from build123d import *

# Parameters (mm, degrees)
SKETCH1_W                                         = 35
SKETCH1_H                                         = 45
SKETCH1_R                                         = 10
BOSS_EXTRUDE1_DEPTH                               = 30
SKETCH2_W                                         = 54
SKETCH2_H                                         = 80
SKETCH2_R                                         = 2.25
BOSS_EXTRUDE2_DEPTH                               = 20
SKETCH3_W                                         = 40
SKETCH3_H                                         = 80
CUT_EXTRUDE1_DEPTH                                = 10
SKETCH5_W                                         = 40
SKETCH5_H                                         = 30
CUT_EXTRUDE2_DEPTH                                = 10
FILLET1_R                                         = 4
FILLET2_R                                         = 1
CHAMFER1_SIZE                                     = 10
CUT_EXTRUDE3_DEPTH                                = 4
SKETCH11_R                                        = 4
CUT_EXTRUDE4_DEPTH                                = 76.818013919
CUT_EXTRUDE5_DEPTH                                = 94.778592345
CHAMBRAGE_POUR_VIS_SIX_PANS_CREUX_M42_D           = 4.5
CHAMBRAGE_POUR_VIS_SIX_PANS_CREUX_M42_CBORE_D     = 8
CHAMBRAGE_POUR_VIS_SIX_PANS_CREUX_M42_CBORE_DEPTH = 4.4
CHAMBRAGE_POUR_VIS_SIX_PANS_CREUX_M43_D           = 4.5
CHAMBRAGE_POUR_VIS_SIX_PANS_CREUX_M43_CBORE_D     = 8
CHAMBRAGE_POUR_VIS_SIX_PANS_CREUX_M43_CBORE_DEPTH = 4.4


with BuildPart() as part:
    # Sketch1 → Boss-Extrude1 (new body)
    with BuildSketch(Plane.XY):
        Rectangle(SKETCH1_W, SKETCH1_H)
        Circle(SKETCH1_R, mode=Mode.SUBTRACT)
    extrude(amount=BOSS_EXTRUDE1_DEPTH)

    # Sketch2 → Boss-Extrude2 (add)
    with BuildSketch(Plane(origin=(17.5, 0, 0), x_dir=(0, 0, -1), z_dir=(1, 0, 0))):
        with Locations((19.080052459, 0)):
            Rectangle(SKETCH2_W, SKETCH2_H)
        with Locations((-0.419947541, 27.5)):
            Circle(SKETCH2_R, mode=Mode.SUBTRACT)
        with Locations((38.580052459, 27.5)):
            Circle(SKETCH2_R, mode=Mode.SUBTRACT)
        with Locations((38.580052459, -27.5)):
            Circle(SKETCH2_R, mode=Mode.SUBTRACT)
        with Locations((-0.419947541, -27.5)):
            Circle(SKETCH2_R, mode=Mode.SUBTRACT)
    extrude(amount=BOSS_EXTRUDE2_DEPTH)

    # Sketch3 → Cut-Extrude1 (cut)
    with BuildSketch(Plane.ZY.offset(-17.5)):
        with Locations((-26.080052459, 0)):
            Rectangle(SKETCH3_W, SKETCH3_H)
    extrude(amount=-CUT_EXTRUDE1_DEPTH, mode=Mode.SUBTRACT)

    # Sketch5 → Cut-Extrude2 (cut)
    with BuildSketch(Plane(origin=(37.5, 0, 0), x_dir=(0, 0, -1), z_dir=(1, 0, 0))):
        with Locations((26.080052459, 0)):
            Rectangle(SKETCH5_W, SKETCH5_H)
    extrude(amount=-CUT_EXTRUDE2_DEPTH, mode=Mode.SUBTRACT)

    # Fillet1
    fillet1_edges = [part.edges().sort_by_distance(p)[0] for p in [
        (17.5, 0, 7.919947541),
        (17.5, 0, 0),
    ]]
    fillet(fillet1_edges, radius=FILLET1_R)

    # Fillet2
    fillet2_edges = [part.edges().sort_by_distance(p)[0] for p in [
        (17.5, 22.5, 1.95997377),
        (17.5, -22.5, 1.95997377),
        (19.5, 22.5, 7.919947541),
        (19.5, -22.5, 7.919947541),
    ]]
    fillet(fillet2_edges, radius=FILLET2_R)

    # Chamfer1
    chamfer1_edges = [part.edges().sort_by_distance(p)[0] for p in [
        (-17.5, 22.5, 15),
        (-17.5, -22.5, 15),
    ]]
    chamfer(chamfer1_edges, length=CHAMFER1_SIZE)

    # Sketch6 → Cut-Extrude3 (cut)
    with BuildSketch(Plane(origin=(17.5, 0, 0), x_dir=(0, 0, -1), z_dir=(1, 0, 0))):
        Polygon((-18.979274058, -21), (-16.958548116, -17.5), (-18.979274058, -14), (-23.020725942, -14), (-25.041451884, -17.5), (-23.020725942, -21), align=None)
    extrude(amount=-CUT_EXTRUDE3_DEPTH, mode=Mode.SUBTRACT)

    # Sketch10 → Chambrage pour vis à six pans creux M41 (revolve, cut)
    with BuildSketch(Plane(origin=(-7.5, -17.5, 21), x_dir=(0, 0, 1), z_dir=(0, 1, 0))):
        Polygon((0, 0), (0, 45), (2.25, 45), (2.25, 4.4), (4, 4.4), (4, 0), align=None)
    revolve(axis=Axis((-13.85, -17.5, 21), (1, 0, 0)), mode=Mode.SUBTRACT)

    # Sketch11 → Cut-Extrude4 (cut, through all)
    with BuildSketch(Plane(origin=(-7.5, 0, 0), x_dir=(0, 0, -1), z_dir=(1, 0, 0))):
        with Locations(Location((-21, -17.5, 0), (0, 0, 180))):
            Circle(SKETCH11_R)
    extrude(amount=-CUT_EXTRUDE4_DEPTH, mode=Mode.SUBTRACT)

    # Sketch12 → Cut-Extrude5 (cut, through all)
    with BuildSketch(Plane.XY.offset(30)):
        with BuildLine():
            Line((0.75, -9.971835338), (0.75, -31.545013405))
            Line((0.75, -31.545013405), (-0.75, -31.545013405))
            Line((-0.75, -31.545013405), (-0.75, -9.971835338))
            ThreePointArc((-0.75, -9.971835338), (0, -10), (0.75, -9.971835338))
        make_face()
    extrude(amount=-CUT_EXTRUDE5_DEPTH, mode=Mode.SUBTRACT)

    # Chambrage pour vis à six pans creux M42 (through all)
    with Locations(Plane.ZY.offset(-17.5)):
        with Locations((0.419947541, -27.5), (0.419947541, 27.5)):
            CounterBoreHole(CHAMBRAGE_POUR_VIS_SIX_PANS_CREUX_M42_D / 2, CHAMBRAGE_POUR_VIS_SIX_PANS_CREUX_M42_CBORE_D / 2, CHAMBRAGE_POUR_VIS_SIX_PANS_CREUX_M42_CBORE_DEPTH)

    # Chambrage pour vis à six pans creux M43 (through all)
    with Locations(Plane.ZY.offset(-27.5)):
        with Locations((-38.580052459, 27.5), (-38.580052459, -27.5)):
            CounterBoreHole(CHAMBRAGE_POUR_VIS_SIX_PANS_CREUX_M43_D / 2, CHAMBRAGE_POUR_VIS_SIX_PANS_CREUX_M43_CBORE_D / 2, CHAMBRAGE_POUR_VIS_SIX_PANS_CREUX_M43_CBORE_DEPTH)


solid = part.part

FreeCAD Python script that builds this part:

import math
import FreeCAD as App
import Part
import Sketcher

V = App.Vector
Q = App.Units.Quantity


def edges_at(feature, points):
    """Names of the edges that pass closest to the given points."""
    edges = feature.Shape.Edges
    near = lambda p: min(range(len(edges)), key=lambda i: edges[i].distToShape(Part.Vertex(*p))[0])
    return sorted({f"Edge{near(p) + 1}" for p in points})

doc = App.newDocument("Part")
body = doc.addObject("PartDesign::Body", "Body")

sketch1 = doc.addObject("Sketcher::SketchObject", "Sketch")
body.addObject(sketch1)
sketch1.AttachmentSupport = (doc.XY_Plane, [""])
sketch1.MapMode = "FlatFace"
sketch1.addGeometry([
    Part.LineSegment(V(-18, 22, 0), V(-18, -22, 0)),
    Part.LineSegment(V(-18, -22, 0), V(18, -22, 0)),
    Part.LineSegment(V(18, -22, 0), V(18, 22, 0)),
    Part.LineSegment(V(18, 22, 0), V(-18, 22, 0)),
    Part.Circle(V(0, 0, 0), V(0, 0, 1), 10),
], False)
sketch1.addConstraint([
    Sketcher.Constraint("Coincident", 0, 2, 1, 1),
    Sketcher.Constraint("Coincident", 1, 2, 2, 1),
    Sketcher.Constraint("Coincident", 2, 2, 3, 1),
    Sketcher.Constraint("Coincident", 3, 2, 0, 1),
    Sketcher.Constraint("Vertical", 0),
    Sketcher.Constraint("Horizontal", 1),
    Sketcher.Constraint("Vertical", 2),
    Sketcher.Constraint("Horizontal", 3),
    Sketcher.Constraint("Coincident", 4, 3, -1, 1),
    Sketcher.Constraint("Symmetric", 0, 2, 2, 2, -1, 1),
    Sketcher.Constraint("Diameter", 4, Q("20 mm")),
    Sketcher.Constraint("DistanceX", 1, 1, 1, 2, Q("35 mm")),
    Sketcher.Constraint("DistanceY", 0, 2, 0, 1, Q("45 mm")),
])
pad1 = doc.addObject("PartDesign::Pad", "Pad")
body.addObject(pad1)
pad1.Profile = sketch1
pad1.Length = 30

sketch2 = doc.addObject("Sketcher::SketchObject", "Sketch001")
body.addObject(sketch2)
sketch2.AttachmentSupport = (doc.YZ_Plane, [""])
sketch2.MapMode = "FlatFace"
sketch2.AttachmentOffset = App.Placement(V(0, 0, 17.5), App.Rotation())
sketch2.addGeometry([
    Part.LineSegment(V(40, 7.9, 0), V(-40, 7.9, 0)),
    Part.LineSegment(V(-40, 7.9, 0), V(-40, -46.1, 0)),
    Part.LineSegment(V(-40, -46.1, 0), V(40, -46.1, 0)),
    Part.LineSegment(V(40, -46.1, 0), V(40, 7.9, 0)),
    Part.Circle(V(-27.5, 0.4, 0), V(0, 0, 1), 2.2),
    Part.Circle(V(-27.5, -38.6, 0), V(0, 0, 1), 2.2),
    Part.Circle(V(27.5, 0.4, 0), V(0, 0, 1), 2.2),
    Part.Circle(V(27.5, -38.6, 0), V(0, 0, 1), 2.2),
], False)
sketch2.addConstraint([
    Sketcher.Constraint("Coincident", 0, 2, 1, 1),
    Sketcher.Constraint("Coincident", 1, 2, 2, 1),
    Sketcher.Constraint("Coincident", 2, 2, 3, 1),
    Sketcher.Constraint("Coincident", 3, 2, 0, 1),
    Sketcher.Constraint("Horizontal", 0),
    Sketcher.Constraint("Vertical", 1),
    Sketcher.Constraint("Horizontal", 2),
    Sketcher.Constraint("Vertical", 3),
    Sketcher.Constraint("Equal", 4, 5),
    Sketcher.Constraint("Equal", 5, 6),
    Sketcher.Constraint("Equal", 6, 7),
    Sketcher.Constraint("Symmetric", 4, 3, 6, 3, -2),
    Sketcher.Constraint("Symmetric", 5, 3, 7, 3, -2),
    Sketcher.Constraint("Vertical", 4, 3, 5, 3),
    Sketcher.Constraint("Diameter", 4, Q("4.5 mm")),
    Sketcher.Constraint("DistanceX", 0, 2, 0, 1, Q("80 mm")),
    Sketcher.Constraint("DistanceY", 1, 2, 1, 1, Q("54 mm")),
    Sketcher.Constraint("DistanceX", 0, 2, -1, 1, Q("40 mm")),
    Sketcher.Constraint("DistanceY", 5, 3, 4, 3, Q("39 mm")),
    Sketcher.Constraint("DistanceX", 4, 3, 6, 3, Q("55 mm")),
    Sketcher.Constraint("DistanceY", 4, 3, 0, 2, Q("7.5 mm")),
    Sketcher.Constraint("DistanceY", -1, 1, 4, 3, Q("0.419948 mm")),
])
pad2 = doc.addObject("PartDesign::Pad", "Pad001")
body.addObject(pad2)
pad2.Profile = sketch2
pad2.Length = 20

sketch3 = doc.addObject("Sketcher::SketchObject", "Sketch002")
body.addObject(sketch3)
sketch3.AttachmentSupport = (doc.YZ_Plane, [""])
sketch3.MapMode = "FlatFace"
sketch3.AttachmentOffset = App.Placement(V(0, 0, 17.5), App.Rotation())
sketch3.addGeometry([
    Part.LineSegment(V(40, -46, 0), V(-40, -46, 0)),
    Part.LineSegment(V(-40, -46, 0), V(-40, -6, 0)),
    Part.LineSegment(V(-40, -6, 0), V(40, -6, 0)),
    Part.LineSegment(V(40, -6, 0), V(40, -46, 0)),
], False)
sketch3.addConstraint([
    Sketcher.Constraint("Coincident", 0, 2, 1, 1),
    Sketcher.Constraint("Coincident", 1, 2, 2, 1),
    Sketcher.Constraint("Coincident", 2, 2, 3, 1),
    Sketcher.Constraint("Coincident", 3, 2, 0, 1),
    Sketcher.Constraint("Horizontal", 0),
    Sketcher.Constraint("Vertical", 1),
    Sketcher.Constraint("Horizontal", 2),
    Sketcher.Constraint("Vertical", 3),
    Sketcher.Constraint("DistanceX", 0, 2, 0, 1, Q("80 mm")),
    Sketcher.Constraint("DistanceY", 1, 1, 1, 2, Q("40 mm")),
    Sketcher.Constraint("DistanceX", 0, 2, -1, 1, Q("40 mm")),
    Sketcher.Constraint("DistanceY", 0, 2, -1, 1, Q("46.080052 mm")),
])
pocket1 = doc.addObject("PartDesign::Pocket", "Pocket")
body.addObject(pocket1)
pocket1.Profile = sketch3
pocket1.Length = 10
pocket1.Reversed = True

sketch4 = doc.addObject("Sketcher::SketchObject", "Sketch003")
body.addObject(sketch4)
sketch4.AttachmentSupport = (doc.YZ_Plane, [""])
sketch4.MapMode = "FlatFace"
sketch4.AttachmentOffset = App.Placement(V(0, 0, 37.5), App.Rotation())
sketch4.addGeometry([
    Part.LineSegment(V(15, -6, 0), V(-15, -6, 0)),
    Part.LineSegment(V(-15, -6, 0), V(-15, -46, 0)),
    Part.LineSegment(V(-15, -46, 0), V(15, -46, 0)),
    Part.LineSegment(V(15, -46, 0), V(15, -6, 0)),
], False)
sketch4.addConstraint([
    Sketcher.Constraint("Coincident", 0, 2, 1, 1),
    Sketcher.Constraint("Coincident", 1, 2, 2, 1),
    Sketcher.Constraint("Coincident", 2, 2, 3, 1),
    Sketcher.Constraint("Coincident", 3, 2, 0, 1),
    Sketcher.Constraint("Horizontal", 0),
    Sketcher.Constraint("Vertical", 1),
    Sketcher.Constraint("Horizontal", 2),
    Sketcher.Constraint("Vertical", 3),
    Sketcher.Constraint("DistanceX", 0, 2, 0, 1, Q("30 mm")),
    Sketcher.Constraint("DistanceY", 1, 2, 1, 1, Q("40 mm")),
    Sketcher.Constraint("DistanceX", 0, 2, -1, 1, Q("15 mm")),
    Sketcher.Constraint("DistanceY", 0, 2, -1, 1, Q("6.080052 mm")),
])
pocket2 = doc.addObject("PartDesign::Pocket", "Pocket001")
body.addObject(pocket2)
pocket2.Profile = sketch4
pocket2.Length = 10
doc.recompute()

fillet = doc.addObject("PartDesign::Fillet", "Fillet")
body.addObject(fillet)
fillet.Base = (pocket2, edges_at(pocket2, [(17.5, 0, 7.92), (17.5, 0, 0)]))
fillet.Radius = 4
doc.recompute()

fillet2 = doc.addObject("PartDesign::Fillet", "Fillet001")
body.addObject(fillet2)
fillet2.Base = (fillet, edges_at(fillet, [
    (17.5, 22.5, 1.96),
    (17.5, -22.5, 1.96),
    (19.5, 22.5, 7.92),
    (19.5, -22.5, 7.92),
]))
fillet2.Radius = 1
doc.recompute()

chamfer = doc.addObject("PartDesign::Chamfer", "Chamfer")
body.addObject(chamfer)
chamfer.Base = (fillet2, edges_at(fillet2, [(-17.5, 22.5, 15), (-17.5, -22.5, 15)]))
chamfer.Size = 10

sketch5 = doc.addObject("Sketcher::SketchObject", "Sketch004")
body.addObject(sketch5)
sketch5.AttachmentSupport = (doc.YZ_Plane, [""])
sketch5.MapMode = "FlatFace"
sketch5.AttachmentOffset = App.Placement(V(0, 0, 17.5), App.Rotation())
sketch5.addGeometry([
    Part.LineSegment(V(-21, 19, 0), V(-17.5, 17, 0)),
    Part.LineSegment(V(-17.5, 17, 0), V(-14, 19, 0)),
    Part.LineSegment(V(-14, 19, 0), V(-14, 23, 0)),
    Part.LineSegment(V(-14, 23, 0), V(-17.5, 25, 0)),
    Part.LineSegment(V(-17.5, 25, 0), V(-21, 23, 0)),
    Part.LineSegment(V(-21, 23, 0), V(-21, 19, 0)),
], False)
sketch5.addConstraint([
    Sketcher.Constraint("Coincident", 0, 2, 1, 1),
    Sketcher.Constraint("Coincident", 1, 2, 2, 1),
    Sketcher.Constraint("Coincident", 2, 2, 3, 1),
    Sketcher.Constraint("Coincident", 3, 2, 4, 1),
    Sketcher.Constraint("Coincident", 4, 2, 5, 1),
    Sketcher.Constraint("Coincident", 5, 2, 0, 1),
    Sketcher.Constraint("Vertical", 2),
    Sketcher.Constraint("Vertical", 5),
    Sketcher.Constraint("Parallel", 0, 3),
    Sketcher.Constraint("Parallel", 1, 4),
    Sketcher.Constraint("Horizontal", 2, 2, 4, 2),
    Sketcher.Constraint("Horizontal", 1, 2, 5, 2),
    Sketcher.Constraint("Vertical", 0, 2, 3, 2),
    Sketcher.Constraint("Angle", 0, Q("-30 deg")),
    Sketcher.Constraint("DistanceX", 1, 2, -1, 1, Q("14 mm")),
    Sketcher.Constraint("DistanceX", 4, 2, -1, 1, Q("21 mm")),
    Sketcher.Constraint("DistanceY", 2, 1, 2, 2, Q("4.041452 mm")),
    Sketcher.Constraint("DistanceY", -1, 1, 0, 2, Q("16.958548 mm")),
])
pocket3 = doc.addObject("PartDesign::Pocket", "Pocket002")
body.addObject(pocket3)
pocket3.Profile = sketch5
pocket3.Length = 4

sketch6 = doc.addObject("Sketcher::SketchObject", "Sketch005")
body.addObject(sketch6)
sketch6.AttachmentSupport = (doc.XZ_Plane, [""])
sketch6.MapMode = "FlatFace"
sketch6.AttachmentOffset = App.Placement(V(0, 0, 17.5), App.Rotation())
sketch6.addGeometry([
    Part.LineSegment(V(37.5, 21, 0), V(-7.5, 21, 0)),
    Part.LineSegment(V(-7.5, 21, 0), V(-7.5, 25, 0)),
    Part.LineSegment(V(-7.5, 25, 0), V(-3.1, 25, 0)),
    Part.LineSegment(V(-3.1, 25, 0), V(-3.1, 23.2, 0)),
    Part.LineSegment(V(-3.1, 23.2, 0), V(37.5, 23.2, 0)),
    Part.LineSegment(V(37.5, 23.2, 0), V(37.5, 21, 0)),
], False)
sketch6.addGeometry(Part.LineSegment(V(-7.5, 21, 0), V(37.5, 21, 0)), True)
sketch6.addConstraint([
    Sketcher.Constraint("Coincident", 0, 2, 1, 1),
    Sketcher.Constraint("Coincident", 1, 2, 2, 1),
    Sketcher.Constraint("Coincident", 2, 2, 3, 1),
    Sketcher.Constraint("Coincident", 3, 2, 4, 1),
    Sketcher.Constraint("Coincident", 4, 2, 5, 1),
    Sketcher.Constraint("Coincident", 5, 2, 0, 1),
    Sketcher.Constraint("Horizontal", 0),
    Sketcher.Constraint("Vertical", 1),
    Sketcher.Constraint("Horizontal", 2),
    Sketcher.Constraint("Vertical", 3),
    Sketcher.Constraint("Horizontal", 4),
    Sketcher.Constraint("Vertical", 5),
    Sketcher.Constraint("Horizontal", 6),
    Sketcher.Constraint("Coincident", 6, 1, 0, 2),
    Sketcher.Constraint("Vertical", 4, 2, 6, 2),
    Sketcher.Constraint("DistanceX", 0, 2, 0, 1, Q("45 mm")),
    Sketcher.Constraint("DistanceY", 1, 1, 1, 2, Q("4 mm")),
    Sketcher.Constraint("DistanceX", 2, 1, 2, 2, Q("4.4 mm")),
    Sketcher.Constraint("DistanceY", -1, 1, 0, 2, Q("21 mm")),
    Sketcher.Constraint("DistanceY", 3, 2, 3, 1, Q("1.75 mm")),
    Sketcher.Constraint("DistanceX", 0, 2, -1, 1, Q("7.5 mm")),
])
groove = doc.addObject("PartDesign::Groove", "Groove")
body.addObject(groove)
groove.Profile = sketch6
groove.ReferenceAxis = (sketch6, ["Axis0"])
groove.Angle = 360

sketch7 = doc.addObject("Sketcher::SketchObject", "Sketch006")
body.addObject(sketch7)
sketch7.AttachmentSupport = (doc.YZ_Plane, [""])
sketch7.MapMode = "FlatFace"
sketch7.AttachmentOffset = App.Placement(V(0, 0, -7.5), App.Rotation())
sketch7.addGeometry(Part.Circle(V(-17.5, 21, 0), V(0, 0, 1), 4), False)
sketch7.addConstraint([
    Sketcher.Constraint("Diameter", 0, Q("8 mm")),
    Sketcher.Constraint("DistanceY", -1, 1, 0, 3, Q("21 mm")),
    Sketcher.Constraint("DistanceX", 0, 3, -1, 1, Q("17.5 mm")),
])
pocket4 = doc.addObject("PartDesign::Pocket", "Pocket003")
body.addObject(pocket4)
pocket4.Profile = sketch7
pocket4.Type = "ThroughAll"

sketch8 = doc.addObject("Sketcher::SketchObject", "Sketch007")
body.addObject(sketch8)
sketch8.AttachmentSupport = (doc.XY_Plane, [""])
sketch8.MapMode = "FlatFace"
sketch8.AttachmentOffset = App.Placement(V(0, 0, 30), App.Rotation())
sketch8.addGeometry([
    Part.LineSegment(V(0.8, -31.5, 0), V(0.8, -10, 0)),
    Part.ArcOfCircle(Part.Circle(V(0, 0, 0), V(0, 0, 1), 10), math.radians(-94.3), math.radians(-85.7)),
    Part.LineSegment(V(-0.8, -10, 0), V(-0.8, -31.5, 0)),
    Part.LineSegment(V(-0.8, -31.5, 0), V(0.8, -31.5, 0)),
], False)
sketch8.addConstraint([
    Sketcher.Constraint("Coincident", 0, 2, 1, 2),
    Sketcher.Constraint("Coincident", 1, 1, 2, 1),
    Sketcher.Constraint("Coincident", 2, 2, 3, 1),
    Sketcher.Constraint("Coincident", 3, 2, 0, 1),
    Sketcher.Constraint("Vertical", 0),
    Sketcher.Constraint("Vertical", 2),
    Sketcher.Constraint("Horizontal", 3),
    Sketcher.Constraint("Coincident", 1, 3, -1, 1),
    Sketcher.Constraint("Horizontal", 0, 2, 1, 1),
    Sketcher.Constraint("Radius", 1, Q("10 mm")),
    Sketcher.Constraint("DistanceX", 3, 1, 3, 2, Q("1.5 mm")),
    Sketcher.Constraint("DistanceY", 0, 1, 0, 2, Q("21.573178 mm")),
])
pocket5 = doc.addObject("PartDesign::Pocket", "Pocket004")
body.addObject(pocket5)
pocket5.Profile = sketch8
pocket5.Type = "ThroughAll"

sketch9 = doc.addObject("Sketcher::SketchObject", "Sketch008")
body.addObject(sketch9)
sketch9.AttachmentSupport = (doc.YZ_Plane, [""])
sketch9.MapMode = "FlatFace"
sketch9.AttachmentOffset = App.Placement(V(0, 0, 17.5), App.Rotation())
sketch9.addGeometry([
    Part.Circle(V(-27.5, 0.4, 0), V(0, 0, 1), 2.2),
    Part.Circle(V(27.5, 0.4, 0), V(0, 0, 1), 2.2),
], False)
sketch9.addConstraint([
    Sketcher.Constraint("Equal", 0, 1),
    Sketcher.Constraint("Symmetric", 0, 3, 1, 3, -2),
    Sketcher.Constraint("Diameter", 0, Q("4.5 mm")),
    Sketcher.Constraint("DistanceX", 0, 3, 1, 3, Q("55 mm")),
    Sketcher.Constraint("DistanceY", -1, 1, 0, 3, Q("0.419948 mm")),
])
doc.recompute()
hole = doc.addObject("PartDesign::Hole", "Hole")
body.addObject(hole)
hole.Profile = sketch9
hole.ThreadType = "None"
hole.Diameter = 4.5
hole.DepthType = "ThroughAll"
hole.HoleCutType = "Counterbore"
hole.HoleCutDiameter = 8
hole.HoleCutDepth = 4.4
hole.Reversed = True

sketch10 = doc.addObject("Sketcher::SketchObject", "Sketch009")
body.addObject(sketch10)
sketch10.AttachmentSupport = (doc.YZ_Plane, [""])
sketch10.MapMode = "FlatFace"
sketch10.AttachmentOffset = App.Placement(V(0, 0, 27.5), App.Rotation())
sketch10.addGeometry([
    Part.Circle(V(27.5, -38.6, 0), V(0, 0, 1), 2.2),
    Part.Circle(V(-27.5, -38.6, 0), V(0, 0, 1), 2.2),
], False)
sketch10.addConstraint([
    Sketcher.Constraint("Equal", 0, 1),
    Sketcher.Constraint("Symmetric", 0, 3, 1, 3, -2),
    Sketcher.Constraint("Diameter", 0, Q("4.5 mm")),
    Sketcher.Constraint("DistanceX", 1, 3, 0, 3, Q("55 mm")),
    Sketcher.Constraint("DistanceY", 0, 3, -1, 1, Q("38.580052 mm")),
])
doc.recompute()
hole2 = doc.addObject("PartDesign::Hole", "Hole001")
body.addObject(hole2)
hole2.Profile = sketch10
hole2.ThreadType = "None"
hole2.Diameter = 4.5
hole2.DepthType = "ThroughAll"
hole2.HoleCutType = "Counterbore"
hole2.HoleCutDiameter = 8
hole2.HoleCutDepth = 4.4
hole2.Reversed = True

doc.recompute()
